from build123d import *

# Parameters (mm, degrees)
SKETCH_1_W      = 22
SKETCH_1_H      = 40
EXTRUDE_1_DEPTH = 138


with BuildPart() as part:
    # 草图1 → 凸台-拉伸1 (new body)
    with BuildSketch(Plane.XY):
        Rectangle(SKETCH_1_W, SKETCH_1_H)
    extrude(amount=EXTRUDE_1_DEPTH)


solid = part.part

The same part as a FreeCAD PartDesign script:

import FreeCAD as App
import Part
import Sketcher
from FreeCAD import Vector
Q = App.Units.Quantity

doc = App.newDocument("Part")
body = doc.addObject("PartDesign::Body", "Body")

# Sketch on XY plane
sketch1 = body.newObject("Sketcher::SketchObject", "Sketch")
sketch1.AttachmentSupport = (doc.getObject("XY_Plane"), [""])
sketch1.MapMode = "FlatFace"
sketch1.addGeometry(Part.LineSegment(Vector(-11, 20, 0), Vector(-11, -20, 0)), False)
sketch1.addGeometry(Part.LineSegment(Vector(-11, -20, 0), Vector(11, -20, 0)), False)
sketch1.addGeometry(Part.LineSegment(Vector(11, -20, 0), Vector(11, 20, 0)), False)
sketch1.addGeometry(Part.LineSegment(Vector(11, 20, 0), Vector(-11, 20, 0)), False)
sketch1.addConstraint(Sketcher.Constraint("Coincident", 0, 2, 1, 1))
sketch1.addConstraint(Sketcher.Constraint("Coincident", 1, 2, 2, 1))
sketch1.addConstraint(Sketcher.Constraint("Coincident", 2, 2, 3, 1))
sketch1.addConstraint(Sketcher.Constraint("Coincident", 3, 2, 0, 1))
sketch1.addConstraint(Sketcher.Constraint("Vertical", 0))
sketch1.addConstraint(Sketcher.Constraint("Horizontal", 1))
sketch1.addConstraint(Sketcher.Constraint("Vertical", 2))
sketch1.addConstraint(Sketcher.Constraint("Horizontal", 3))
sketch1.addConstraint(Sketcher.Constraint("Symmetric", 0, 2, 2, 2, -1, 1))
sketch1.addConstraint(Sketcher.Constraint("DistanceX", 1, 1, 1, 2, Q("22 mm")))
sketch1.addConstraint(Sketcher.Constraint("DistanceY", 0, 2, 0, 1, Q("40 mm")))
pad1 = body.newObject("PartDesign::Pad", "Pad")
pad1.Profile = sketch1
pad1.Length = 138

doc.recompute()
